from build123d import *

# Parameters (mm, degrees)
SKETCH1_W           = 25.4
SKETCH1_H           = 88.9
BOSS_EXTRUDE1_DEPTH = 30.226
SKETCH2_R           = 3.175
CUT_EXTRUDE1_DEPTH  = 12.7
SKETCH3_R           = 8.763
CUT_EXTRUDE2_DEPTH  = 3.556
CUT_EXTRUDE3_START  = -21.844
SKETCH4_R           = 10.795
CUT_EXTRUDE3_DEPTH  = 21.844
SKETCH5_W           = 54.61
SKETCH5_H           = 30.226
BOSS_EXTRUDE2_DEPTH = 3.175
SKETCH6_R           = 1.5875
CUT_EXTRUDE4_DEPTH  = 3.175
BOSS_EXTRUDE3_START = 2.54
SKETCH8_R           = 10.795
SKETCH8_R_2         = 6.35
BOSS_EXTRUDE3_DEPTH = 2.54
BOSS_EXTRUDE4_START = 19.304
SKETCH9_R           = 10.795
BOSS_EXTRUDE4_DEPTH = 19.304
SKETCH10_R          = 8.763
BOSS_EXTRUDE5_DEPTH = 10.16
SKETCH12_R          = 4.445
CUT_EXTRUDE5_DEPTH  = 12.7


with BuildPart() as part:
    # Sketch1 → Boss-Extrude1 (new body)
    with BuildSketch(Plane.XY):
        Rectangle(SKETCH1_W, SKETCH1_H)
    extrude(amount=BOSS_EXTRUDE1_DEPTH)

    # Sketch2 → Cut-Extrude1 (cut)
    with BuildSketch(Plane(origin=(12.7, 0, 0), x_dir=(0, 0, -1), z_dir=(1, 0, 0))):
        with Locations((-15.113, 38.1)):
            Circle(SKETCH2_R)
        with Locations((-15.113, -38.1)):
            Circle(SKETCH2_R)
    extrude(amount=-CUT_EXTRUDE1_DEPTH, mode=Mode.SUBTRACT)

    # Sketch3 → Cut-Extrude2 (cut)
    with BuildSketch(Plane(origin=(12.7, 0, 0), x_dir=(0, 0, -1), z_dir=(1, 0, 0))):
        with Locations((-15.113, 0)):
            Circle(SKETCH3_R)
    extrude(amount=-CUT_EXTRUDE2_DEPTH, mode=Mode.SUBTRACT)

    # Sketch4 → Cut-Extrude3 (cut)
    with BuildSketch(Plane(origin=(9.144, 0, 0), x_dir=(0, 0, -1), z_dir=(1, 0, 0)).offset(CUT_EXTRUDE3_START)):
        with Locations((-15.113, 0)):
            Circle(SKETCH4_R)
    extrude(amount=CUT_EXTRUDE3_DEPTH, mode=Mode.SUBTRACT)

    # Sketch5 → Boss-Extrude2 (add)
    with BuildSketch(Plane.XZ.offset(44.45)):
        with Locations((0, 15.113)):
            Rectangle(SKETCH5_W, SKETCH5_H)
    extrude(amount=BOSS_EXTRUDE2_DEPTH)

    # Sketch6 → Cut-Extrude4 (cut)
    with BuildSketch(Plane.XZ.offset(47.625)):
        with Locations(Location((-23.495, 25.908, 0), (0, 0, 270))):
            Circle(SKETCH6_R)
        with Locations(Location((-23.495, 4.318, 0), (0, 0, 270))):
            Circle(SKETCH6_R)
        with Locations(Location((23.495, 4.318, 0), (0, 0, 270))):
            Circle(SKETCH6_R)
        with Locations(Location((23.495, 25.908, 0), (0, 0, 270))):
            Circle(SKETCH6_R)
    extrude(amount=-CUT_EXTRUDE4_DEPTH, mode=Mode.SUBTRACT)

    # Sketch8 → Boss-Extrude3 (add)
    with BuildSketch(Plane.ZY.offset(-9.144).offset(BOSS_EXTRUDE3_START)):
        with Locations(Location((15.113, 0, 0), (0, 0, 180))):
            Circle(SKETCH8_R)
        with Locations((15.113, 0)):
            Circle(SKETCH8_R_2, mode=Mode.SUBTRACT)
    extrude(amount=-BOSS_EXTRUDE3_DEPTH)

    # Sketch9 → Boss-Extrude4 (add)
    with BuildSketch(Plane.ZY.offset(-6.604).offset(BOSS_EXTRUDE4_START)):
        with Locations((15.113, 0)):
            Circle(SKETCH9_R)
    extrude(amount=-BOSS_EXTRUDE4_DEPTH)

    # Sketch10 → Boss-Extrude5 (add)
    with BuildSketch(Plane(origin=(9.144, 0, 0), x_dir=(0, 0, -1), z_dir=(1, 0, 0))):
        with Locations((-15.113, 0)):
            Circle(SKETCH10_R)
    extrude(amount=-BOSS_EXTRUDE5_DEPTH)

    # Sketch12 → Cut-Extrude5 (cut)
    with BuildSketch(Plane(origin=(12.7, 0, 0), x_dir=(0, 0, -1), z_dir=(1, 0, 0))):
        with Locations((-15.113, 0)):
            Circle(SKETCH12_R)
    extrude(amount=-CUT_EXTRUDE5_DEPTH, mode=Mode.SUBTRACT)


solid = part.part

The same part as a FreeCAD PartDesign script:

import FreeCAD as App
import Part
import Sketcher

V = App.Vector
Q = App.Units.Quantity

doc = App.newDocument("Part")
body = doc.addObject("PartDesign::Body", "Body")

sketch1 = body.newObject("Sketcher::SketchObject", "Sketch")
sketch1.AttachmentSupport = (doc.getObject("XY_Plane"), [""])
sketch1.MapMode = "FlatFace"
sketch1.addGeometry([
    Part.LineSegment(V(-13, 44, 0), V(-13, -44, 0)),
    Part.LineSegment(V(-13, -44, 0), V(13, -44, 0)),
    Part.LineSegment(V(13, -44, 0), V(13, 44, 0)),
    Part.LineSegment(V(13, 44, 0), V(-13, 44, 0)),
], False)
sketch1.addConstraint([
    Sketcher.Constraint("Coincident", 0, 2, 1, 1),
    Sketcher.Constraint("Coincident", 1, 2, 2, 1),
    Sketcher.Constraint("Coincident", 2, 2, 3, 1),
    Sketcher.Constraint("Coincident", 3, 2, 0, 1),
    Sketcher.Constraint("Vertical", 0),
    Sketcher.Constraint("Horizontal", 1),
    Sketcher.Constraint("Vertical", 2),
    Sketcher.Constraint("Horizontal", 3),
    Sketcher.Constraint("Symmetric", 0, 2, 2, 2, -1, 1),
    Sketcher.Constraint("DistanceX", 1, 1, 1, 2, Q("1 in")),
    Sketcher.Constraint("DistanceY", 0, 2, 0, 1, Q("3.5 in")),
])
pad1 = body.newObject("PartDesign::Pad", "Pad")
pad1.Profile = sketch1
pad1.Length = Q("1.19 in")

sketch2 = body.newObject("Sketcher::SketchObject", "Sketch001")
sketch2.AttachmentSupport = (doc.getObject("YZ_Plane"), [""])
sketch2.MapMode = "FlatFace"
sketch2.AttachmentOffset = App.Placement(V(0, 0, 0.5 * 25.4), App.Rotation())
sketch2.addGeometry([
    Part.Circle(V(38.1, 15.1, 0), V(0, 0, 1), 3.2),
    Part.Circle(V(-38.1, 15.1, 0), V(0, 0, 1), 3.2),
], False)
sketch2.addConstraint([
    Sketcher.Constraint("Equal", 0, 1),
    Sketcher.Constraint("Symmetric", 0, 3, 1, 3, -2),
    Sketcher.Constraint("Diameter", 0, Q("0.25 in")),
    Sketcher.Constraint("DistanceX", 1, 3, 0, 3, Q("3 in")),
    Sketcher.Constraint("DistanceY", -1, 1, 0, 3, Q("0.595 in")),
])
pocket1 = body.newObject("PartDesign::Pocket", "Pocket")
pocket1.Profile = sketch2
pocket1.Length = Q("0.5 in")

sketch3 = body.newObject("Sketcher::SketchObject", "Sketch002")
sketch3.AttachmentSupport = (doc.getObject("YZ_Plane"), [""])
sketch3.MapMode = "FlatFace"
sketch3.AttachmentOffset = App.Placement(V(0, 0, 0.5 * 25.4), App.Rotation())
sketch3.addGeometry(Part.Circle(V(0, 15, 0), V(0, 0, 1), 9), False)
sketch3.addConstraint([
    Sketcher.Constraint("PointOnObject", 0, 3, -2),
    Sketcher.Constraint("Diameter", 0, Q("0.69 in")),
    Sketcher.Constraint("DistanceY", -1, 1, 0, 3, Q("0.595 in")),
])
pocket2 = body.newObject("PartDesign::Pocket", "Pocket001")
pocket2.Profile = sketch3
pocket2.Length = Q("0.14 in")

sketch4 = body.newObject("Sketcher::SketchObject", "Sketch003")
sketch4.AttachmentSupport = (doc.getObject("YZ_Plane"), [""])
sketch4.MapMode = "FlatFace"
sketch4.AttachmentOffset = App.Placement(V(0, 0, -0.5 * 25.4), App.Rotation())
sketch4.addGeometry(Part.Circle(V(0, 15, 0), V(0, 0, 1), 11), False)
sketch4.addConstraint([
    Sketcher.Constraint("PointOnObject", 0, 3, -2),
    Sketcher.Constraint("Diameter", 0, Q("0.85 in")),
    Sketcher.Constraint("DistanceY", -1, 1, 0, 3, Q("0.595 in")),
])
pocket3 = body.newObject("PartDesign::Pocket", "Pocket002")
pocket3.Profile = sketch4
pocket3.Length = Q("0.86 in")
pocket3.Reversed = True

sketch5 = body.newObject("Sketcher::SketchObject", "Sketch004")
sketch5.AttachmentSupport = (doc.getObject("XZ_Plane"), [""])
sketch5.MapMode = "FlatFace"
sketch5.AttachmentOffset = App.Placement(V(0, 0, 1.75 * 25.4), App.Rotation())
sketch5.addGeometry([
    Part.LineSegment(V(-27, 30, 0), V(-27, 0, 0)),
    Part.LineSegment(V(-27, 0, 0), V(27, 0, 0)),
    Part.LineSegment(V(27, 0, 0), V(27, 30, 0)),
    Part.LineSegment(V(27, 30, 0), V(-27, 30, 0)),
], False)
sketch5.addConstraint([
    Sketcher.Constraint("Coincident", 0, 2, 1, 1),
    Sketcher.Constraint("Coincident", 1, 2, 2, 1),
    Sketcher.Constraint("Coincident", 2, 2, 3, 1),
    Sketcher.Constraint("Coincident", 3, 2, 0, 1),
    Sketcher.Constraint("Vertical", 0),
    Sketcher.Constraint("Horizontal", 1),
    Sketcher.Constraint("Vertical", 2),
    Sketcher.Constraint("Horizontal", 3),
    Sketcher.Constraint("Symmetric", 0, 2, 1, 2, -1, 1),
    Sketcher.Constraint("DistanceX", 1, 1, 1, 2, Q("2.15 in")),
    Sketcher.Constraint("DistanceY", 0, 2, 0, 1, Q("1.19 in")),
])
pad2 = body.newObject("PartDesign::Pad", "Pad001")
pad2.Profile = sketch5
pad2.Length = Q("0.125 in")

sketch6 = body.newObject("Sketcher::SketchObject", "Sketch005")
sketch6.AttachmentSupport = (doc.getObject("XZ_Plane"), [""])
sketch6.MapMode = "FlatFace"
sketch6.AttachmentOffset = App.Placement(V(0, 0, 1.875 * 25.4), App.Rotation())
sketch6.addGeometry([
    Part.Circle(V(-23.5, 25.9, 0), V(0, 0, 1), 1.6),
    Part.Circle(V(-23.5, 4.3, 0), V(0, 0, 1), 1.6),
    Part.Circle(V(23.5, 4.3, 0), V(0, 0, 1), 1.6),
    Part.Circle(V(23.5, 25.9, 0), V(0, 0, 1), 1.6),
], False)
sketch6.addConstraint([
    Sketcher.Constraint("Equal", 0, 1),
    Sketcher.Constraint("Equal", 1, 2),
    Sketcher.Constraint("Equal", 2, 3),
    Sketcher.Constraint("Symmetric", 1, 3, 2, 3, -2),
    Sketcher.Constraint("Symmetric", 0, 3, 3, 3, -2),
    Sketcher.Constraint("Vertical", 0, 3, 1, 3),
    Sketcher.Constraint("Diameter", 0, Q("0.125 in")),
    Sketcher.Constraint("DistanceY", -1, 1, 0, 3, Q("1.02 in")),
    Sketcher.Constraint("DistanceY", -1, 1, 1, 3, Q("0.17 in")),
    Sketcher.Constraint("DistanceX", 1, 3, 2, 3, Q("1.85 in")),
])
pocket4 = body.newObject("PartDesign::Pocket", "Pocket003")
pocket4.Profile = sketch6
pocket4.Length = Q("0.125 in")

sketch7 = body.newObject("Sketcher::SketchObject", "Sketch006")
sketch7.AttachmentSupport = (doc.getObject("YZ_Plane"), [""])
sketch7.MapMode = "FlatFace"
sketch7.AttachmentOffset = App.Placement(V(0, 0, 0.26 * 25.4), App.Rotation())
sketch7.addGeometry([
    Part.Circle(V(0, 15, 0), V(0, 0, 1), 11),
    Part.Circle(V(0, 15, 0), V(0, 0, 1), 6),
], False)
sketch7.addConstraint([
    Sketcher.Constraint("Coincident", 1, 3, 0, 3),
    Sketcher.Constraint("PointOnObject", 0, 3, -2),
    Sketcher.Constraint("Diameter", 1, Q("0.5 in")),
    Sketcher.Constraint("Diameter", 0, Q("0.85 in")),
    Sketcher.Constraint("DistanceY", -1, 1, 0, 3, Q("0.595 in")),
])
pad3 = body.newObject("PartDesign::Pad", "Pad002")
pad3.Profile = sketch7
pad3.Length = Q("0.1 in")

sketch8 = body.newObject("Sketcher::SketchObject", "Sketch007")
sketch8.AttachmentSupport = (doc.getObject("YZ_Plane"), [""])
sketch8.MapMode = "FlatFace"
sketch8.AttachmentOffset = App.Placement(V(0, 0, -0.5 * 25.4), App.Rotation())
sketch8.addGeometry(Part.Circle(V(0, 15, 0), V(0, 0, 1), 11), False)
sketch8.addConstraint([
    Sketcher.Constraint("PointOnObject", 0, 3, -2),
    Sketcher.Constraint("Diameter", 0, Q("0.85 in")),
    Sketcher.Constraint("DistanceY", -1, 1, 0, 3, Q("0.595 in")),
])
pad4 = body.newObject("PartDesign::Pad", "Pad003")
pad4.Profile = sketch8
pad4.Length = Q("0.76 in")

sketch9 = body.newObject("Sketcher::SketchObject", "Sketch008")
sketch9.AttachmentSupport = (doc.getObject("YZ_Plane"), [""])
sketch9.MapMode = "FlatFace"
sketch9.AttachmentOffset = App.Placement(V(0, 0, 0.36 * 25.4), App.Rotation())
sketch9.addGeometry(Part.Circle(V(0, 15, 0), V(0, 0, 1), 9), False)
sketch9.addConstraint([
    Sketcher.Constraint("PointOnObject", 0, 3, -2),
    Sketcher.Constraint("Diameter", 0, Q("0.69 in")),
    Sketcher.Constraint("DistanceY", -1, 1, 0, 3, Q("0.595 in")),
])
pad5 = body.newObject("PartDesign::Pad", "Pad004")
pad5.Profile = sketch9
pad5.Length = Q("0.4 in")
pad5.Reversed = True

sketch10 = body.newObject("Sketcher::SketchObject", "Sketch009")
sketch10.AttachmentSupport = (doc.getObject("YZ_Plane"), [""])
sketch10.MapMode = "FlatFace"
sketch10.AttachmentOffset = App.Placement(V(0, 0, 0.5 * 25.4), App.Rotation())
sketch10.addGeometry(Part.Circle(V(0, 15.1, 0), V(0, 0, 1), 4.4), False)
sketch10.addConstraint([
    Sketcher.Constraint("PointOnObject", 0, 3, -2),
    Sketcher.Constraint("Diameter", 0, Q("0.35 in")),
    Sketcher.Constraint("DistanceY", -1, 1, 0, 3, Q("0.595 in")),
])
pocket5 = body.newObject("PartDesign::Pocket", "Pocket004")
pocket5.Profile = sketch10
pocket5.Length = Q("0.5 in")

doc.recompute()
